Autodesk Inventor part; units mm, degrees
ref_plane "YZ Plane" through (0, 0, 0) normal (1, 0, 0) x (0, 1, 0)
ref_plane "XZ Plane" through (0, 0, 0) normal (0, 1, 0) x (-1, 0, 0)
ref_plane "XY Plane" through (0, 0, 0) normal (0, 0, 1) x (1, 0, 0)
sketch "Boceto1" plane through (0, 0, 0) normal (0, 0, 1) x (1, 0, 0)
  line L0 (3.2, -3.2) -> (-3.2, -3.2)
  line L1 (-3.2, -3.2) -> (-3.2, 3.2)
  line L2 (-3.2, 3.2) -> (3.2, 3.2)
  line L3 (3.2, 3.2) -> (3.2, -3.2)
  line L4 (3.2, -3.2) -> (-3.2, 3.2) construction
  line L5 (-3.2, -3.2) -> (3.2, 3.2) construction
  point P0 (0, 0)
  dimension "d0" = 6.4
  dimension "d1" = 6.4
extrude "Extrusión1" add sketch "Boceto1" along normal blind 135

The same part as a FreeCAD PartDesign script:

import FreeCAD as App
import Part
import Sketcher
from FreeCAD import Vector
Q = App.Units.Quantity


def add_polygon(sketch, points):
    """Adds a closed chain of lines whose ends are joined by coincident constraints."""
    first, n = sketch.GeometryCount, len(points)
    for a, b in zip(points, points[1:] + points[:1]):
        sketch.addGeometry(Part.LineSegment(App.Vector(*a, 0), App.Vector(*b, 0)), False)
    for i in range(n):
        sketch.addConstraint(Sketcher.Constraint("Coincident", first + i, 2, first + (i + 1) % n, 1))

doc = App.newDocument("Part")
body = doc.addObject("PartDesign::Body", "Body")

sketch1 = body.newObject("Sketcher::SketchObject", "Sketch")
sketch1.AttachmentSupport = (doc.getObject("XY_Plane"), [""])
sketch1.MapMode = "FlatFace"
add_polygon(sketch1, [(-3, -3), (3, -3), (3, 3), (-3, 3)])
sketch1.addConstraint(Sketcher.Constraint("Horizontal", 0))
sketch1.addConstraint(Sketcher.Constraint("Vertical", 1))
sketch1.addConstraint(Sketcher.Constraint("Horizontal", 2))
sketch1.addConstraint(Sketcher.Constraint("Vertical", 3))
sketch1.addConstraint(Sketcher.Constraint("Symmetric", 0, 2, 2, 2, -1, 1))
sketch1.addConstraint(Sketcher.Constraint("Equal", 2, 1))
sketch1.addConstraint(Sketcher.Constraint("DistanceX", 0, 1, 0, 2, Q("6.4 mm")))
pad1 = body.newObject("PartDesign::Pad", "Pad")
pad1.Profile = sketch1
pad1.Length = 135

doc.recompute()
